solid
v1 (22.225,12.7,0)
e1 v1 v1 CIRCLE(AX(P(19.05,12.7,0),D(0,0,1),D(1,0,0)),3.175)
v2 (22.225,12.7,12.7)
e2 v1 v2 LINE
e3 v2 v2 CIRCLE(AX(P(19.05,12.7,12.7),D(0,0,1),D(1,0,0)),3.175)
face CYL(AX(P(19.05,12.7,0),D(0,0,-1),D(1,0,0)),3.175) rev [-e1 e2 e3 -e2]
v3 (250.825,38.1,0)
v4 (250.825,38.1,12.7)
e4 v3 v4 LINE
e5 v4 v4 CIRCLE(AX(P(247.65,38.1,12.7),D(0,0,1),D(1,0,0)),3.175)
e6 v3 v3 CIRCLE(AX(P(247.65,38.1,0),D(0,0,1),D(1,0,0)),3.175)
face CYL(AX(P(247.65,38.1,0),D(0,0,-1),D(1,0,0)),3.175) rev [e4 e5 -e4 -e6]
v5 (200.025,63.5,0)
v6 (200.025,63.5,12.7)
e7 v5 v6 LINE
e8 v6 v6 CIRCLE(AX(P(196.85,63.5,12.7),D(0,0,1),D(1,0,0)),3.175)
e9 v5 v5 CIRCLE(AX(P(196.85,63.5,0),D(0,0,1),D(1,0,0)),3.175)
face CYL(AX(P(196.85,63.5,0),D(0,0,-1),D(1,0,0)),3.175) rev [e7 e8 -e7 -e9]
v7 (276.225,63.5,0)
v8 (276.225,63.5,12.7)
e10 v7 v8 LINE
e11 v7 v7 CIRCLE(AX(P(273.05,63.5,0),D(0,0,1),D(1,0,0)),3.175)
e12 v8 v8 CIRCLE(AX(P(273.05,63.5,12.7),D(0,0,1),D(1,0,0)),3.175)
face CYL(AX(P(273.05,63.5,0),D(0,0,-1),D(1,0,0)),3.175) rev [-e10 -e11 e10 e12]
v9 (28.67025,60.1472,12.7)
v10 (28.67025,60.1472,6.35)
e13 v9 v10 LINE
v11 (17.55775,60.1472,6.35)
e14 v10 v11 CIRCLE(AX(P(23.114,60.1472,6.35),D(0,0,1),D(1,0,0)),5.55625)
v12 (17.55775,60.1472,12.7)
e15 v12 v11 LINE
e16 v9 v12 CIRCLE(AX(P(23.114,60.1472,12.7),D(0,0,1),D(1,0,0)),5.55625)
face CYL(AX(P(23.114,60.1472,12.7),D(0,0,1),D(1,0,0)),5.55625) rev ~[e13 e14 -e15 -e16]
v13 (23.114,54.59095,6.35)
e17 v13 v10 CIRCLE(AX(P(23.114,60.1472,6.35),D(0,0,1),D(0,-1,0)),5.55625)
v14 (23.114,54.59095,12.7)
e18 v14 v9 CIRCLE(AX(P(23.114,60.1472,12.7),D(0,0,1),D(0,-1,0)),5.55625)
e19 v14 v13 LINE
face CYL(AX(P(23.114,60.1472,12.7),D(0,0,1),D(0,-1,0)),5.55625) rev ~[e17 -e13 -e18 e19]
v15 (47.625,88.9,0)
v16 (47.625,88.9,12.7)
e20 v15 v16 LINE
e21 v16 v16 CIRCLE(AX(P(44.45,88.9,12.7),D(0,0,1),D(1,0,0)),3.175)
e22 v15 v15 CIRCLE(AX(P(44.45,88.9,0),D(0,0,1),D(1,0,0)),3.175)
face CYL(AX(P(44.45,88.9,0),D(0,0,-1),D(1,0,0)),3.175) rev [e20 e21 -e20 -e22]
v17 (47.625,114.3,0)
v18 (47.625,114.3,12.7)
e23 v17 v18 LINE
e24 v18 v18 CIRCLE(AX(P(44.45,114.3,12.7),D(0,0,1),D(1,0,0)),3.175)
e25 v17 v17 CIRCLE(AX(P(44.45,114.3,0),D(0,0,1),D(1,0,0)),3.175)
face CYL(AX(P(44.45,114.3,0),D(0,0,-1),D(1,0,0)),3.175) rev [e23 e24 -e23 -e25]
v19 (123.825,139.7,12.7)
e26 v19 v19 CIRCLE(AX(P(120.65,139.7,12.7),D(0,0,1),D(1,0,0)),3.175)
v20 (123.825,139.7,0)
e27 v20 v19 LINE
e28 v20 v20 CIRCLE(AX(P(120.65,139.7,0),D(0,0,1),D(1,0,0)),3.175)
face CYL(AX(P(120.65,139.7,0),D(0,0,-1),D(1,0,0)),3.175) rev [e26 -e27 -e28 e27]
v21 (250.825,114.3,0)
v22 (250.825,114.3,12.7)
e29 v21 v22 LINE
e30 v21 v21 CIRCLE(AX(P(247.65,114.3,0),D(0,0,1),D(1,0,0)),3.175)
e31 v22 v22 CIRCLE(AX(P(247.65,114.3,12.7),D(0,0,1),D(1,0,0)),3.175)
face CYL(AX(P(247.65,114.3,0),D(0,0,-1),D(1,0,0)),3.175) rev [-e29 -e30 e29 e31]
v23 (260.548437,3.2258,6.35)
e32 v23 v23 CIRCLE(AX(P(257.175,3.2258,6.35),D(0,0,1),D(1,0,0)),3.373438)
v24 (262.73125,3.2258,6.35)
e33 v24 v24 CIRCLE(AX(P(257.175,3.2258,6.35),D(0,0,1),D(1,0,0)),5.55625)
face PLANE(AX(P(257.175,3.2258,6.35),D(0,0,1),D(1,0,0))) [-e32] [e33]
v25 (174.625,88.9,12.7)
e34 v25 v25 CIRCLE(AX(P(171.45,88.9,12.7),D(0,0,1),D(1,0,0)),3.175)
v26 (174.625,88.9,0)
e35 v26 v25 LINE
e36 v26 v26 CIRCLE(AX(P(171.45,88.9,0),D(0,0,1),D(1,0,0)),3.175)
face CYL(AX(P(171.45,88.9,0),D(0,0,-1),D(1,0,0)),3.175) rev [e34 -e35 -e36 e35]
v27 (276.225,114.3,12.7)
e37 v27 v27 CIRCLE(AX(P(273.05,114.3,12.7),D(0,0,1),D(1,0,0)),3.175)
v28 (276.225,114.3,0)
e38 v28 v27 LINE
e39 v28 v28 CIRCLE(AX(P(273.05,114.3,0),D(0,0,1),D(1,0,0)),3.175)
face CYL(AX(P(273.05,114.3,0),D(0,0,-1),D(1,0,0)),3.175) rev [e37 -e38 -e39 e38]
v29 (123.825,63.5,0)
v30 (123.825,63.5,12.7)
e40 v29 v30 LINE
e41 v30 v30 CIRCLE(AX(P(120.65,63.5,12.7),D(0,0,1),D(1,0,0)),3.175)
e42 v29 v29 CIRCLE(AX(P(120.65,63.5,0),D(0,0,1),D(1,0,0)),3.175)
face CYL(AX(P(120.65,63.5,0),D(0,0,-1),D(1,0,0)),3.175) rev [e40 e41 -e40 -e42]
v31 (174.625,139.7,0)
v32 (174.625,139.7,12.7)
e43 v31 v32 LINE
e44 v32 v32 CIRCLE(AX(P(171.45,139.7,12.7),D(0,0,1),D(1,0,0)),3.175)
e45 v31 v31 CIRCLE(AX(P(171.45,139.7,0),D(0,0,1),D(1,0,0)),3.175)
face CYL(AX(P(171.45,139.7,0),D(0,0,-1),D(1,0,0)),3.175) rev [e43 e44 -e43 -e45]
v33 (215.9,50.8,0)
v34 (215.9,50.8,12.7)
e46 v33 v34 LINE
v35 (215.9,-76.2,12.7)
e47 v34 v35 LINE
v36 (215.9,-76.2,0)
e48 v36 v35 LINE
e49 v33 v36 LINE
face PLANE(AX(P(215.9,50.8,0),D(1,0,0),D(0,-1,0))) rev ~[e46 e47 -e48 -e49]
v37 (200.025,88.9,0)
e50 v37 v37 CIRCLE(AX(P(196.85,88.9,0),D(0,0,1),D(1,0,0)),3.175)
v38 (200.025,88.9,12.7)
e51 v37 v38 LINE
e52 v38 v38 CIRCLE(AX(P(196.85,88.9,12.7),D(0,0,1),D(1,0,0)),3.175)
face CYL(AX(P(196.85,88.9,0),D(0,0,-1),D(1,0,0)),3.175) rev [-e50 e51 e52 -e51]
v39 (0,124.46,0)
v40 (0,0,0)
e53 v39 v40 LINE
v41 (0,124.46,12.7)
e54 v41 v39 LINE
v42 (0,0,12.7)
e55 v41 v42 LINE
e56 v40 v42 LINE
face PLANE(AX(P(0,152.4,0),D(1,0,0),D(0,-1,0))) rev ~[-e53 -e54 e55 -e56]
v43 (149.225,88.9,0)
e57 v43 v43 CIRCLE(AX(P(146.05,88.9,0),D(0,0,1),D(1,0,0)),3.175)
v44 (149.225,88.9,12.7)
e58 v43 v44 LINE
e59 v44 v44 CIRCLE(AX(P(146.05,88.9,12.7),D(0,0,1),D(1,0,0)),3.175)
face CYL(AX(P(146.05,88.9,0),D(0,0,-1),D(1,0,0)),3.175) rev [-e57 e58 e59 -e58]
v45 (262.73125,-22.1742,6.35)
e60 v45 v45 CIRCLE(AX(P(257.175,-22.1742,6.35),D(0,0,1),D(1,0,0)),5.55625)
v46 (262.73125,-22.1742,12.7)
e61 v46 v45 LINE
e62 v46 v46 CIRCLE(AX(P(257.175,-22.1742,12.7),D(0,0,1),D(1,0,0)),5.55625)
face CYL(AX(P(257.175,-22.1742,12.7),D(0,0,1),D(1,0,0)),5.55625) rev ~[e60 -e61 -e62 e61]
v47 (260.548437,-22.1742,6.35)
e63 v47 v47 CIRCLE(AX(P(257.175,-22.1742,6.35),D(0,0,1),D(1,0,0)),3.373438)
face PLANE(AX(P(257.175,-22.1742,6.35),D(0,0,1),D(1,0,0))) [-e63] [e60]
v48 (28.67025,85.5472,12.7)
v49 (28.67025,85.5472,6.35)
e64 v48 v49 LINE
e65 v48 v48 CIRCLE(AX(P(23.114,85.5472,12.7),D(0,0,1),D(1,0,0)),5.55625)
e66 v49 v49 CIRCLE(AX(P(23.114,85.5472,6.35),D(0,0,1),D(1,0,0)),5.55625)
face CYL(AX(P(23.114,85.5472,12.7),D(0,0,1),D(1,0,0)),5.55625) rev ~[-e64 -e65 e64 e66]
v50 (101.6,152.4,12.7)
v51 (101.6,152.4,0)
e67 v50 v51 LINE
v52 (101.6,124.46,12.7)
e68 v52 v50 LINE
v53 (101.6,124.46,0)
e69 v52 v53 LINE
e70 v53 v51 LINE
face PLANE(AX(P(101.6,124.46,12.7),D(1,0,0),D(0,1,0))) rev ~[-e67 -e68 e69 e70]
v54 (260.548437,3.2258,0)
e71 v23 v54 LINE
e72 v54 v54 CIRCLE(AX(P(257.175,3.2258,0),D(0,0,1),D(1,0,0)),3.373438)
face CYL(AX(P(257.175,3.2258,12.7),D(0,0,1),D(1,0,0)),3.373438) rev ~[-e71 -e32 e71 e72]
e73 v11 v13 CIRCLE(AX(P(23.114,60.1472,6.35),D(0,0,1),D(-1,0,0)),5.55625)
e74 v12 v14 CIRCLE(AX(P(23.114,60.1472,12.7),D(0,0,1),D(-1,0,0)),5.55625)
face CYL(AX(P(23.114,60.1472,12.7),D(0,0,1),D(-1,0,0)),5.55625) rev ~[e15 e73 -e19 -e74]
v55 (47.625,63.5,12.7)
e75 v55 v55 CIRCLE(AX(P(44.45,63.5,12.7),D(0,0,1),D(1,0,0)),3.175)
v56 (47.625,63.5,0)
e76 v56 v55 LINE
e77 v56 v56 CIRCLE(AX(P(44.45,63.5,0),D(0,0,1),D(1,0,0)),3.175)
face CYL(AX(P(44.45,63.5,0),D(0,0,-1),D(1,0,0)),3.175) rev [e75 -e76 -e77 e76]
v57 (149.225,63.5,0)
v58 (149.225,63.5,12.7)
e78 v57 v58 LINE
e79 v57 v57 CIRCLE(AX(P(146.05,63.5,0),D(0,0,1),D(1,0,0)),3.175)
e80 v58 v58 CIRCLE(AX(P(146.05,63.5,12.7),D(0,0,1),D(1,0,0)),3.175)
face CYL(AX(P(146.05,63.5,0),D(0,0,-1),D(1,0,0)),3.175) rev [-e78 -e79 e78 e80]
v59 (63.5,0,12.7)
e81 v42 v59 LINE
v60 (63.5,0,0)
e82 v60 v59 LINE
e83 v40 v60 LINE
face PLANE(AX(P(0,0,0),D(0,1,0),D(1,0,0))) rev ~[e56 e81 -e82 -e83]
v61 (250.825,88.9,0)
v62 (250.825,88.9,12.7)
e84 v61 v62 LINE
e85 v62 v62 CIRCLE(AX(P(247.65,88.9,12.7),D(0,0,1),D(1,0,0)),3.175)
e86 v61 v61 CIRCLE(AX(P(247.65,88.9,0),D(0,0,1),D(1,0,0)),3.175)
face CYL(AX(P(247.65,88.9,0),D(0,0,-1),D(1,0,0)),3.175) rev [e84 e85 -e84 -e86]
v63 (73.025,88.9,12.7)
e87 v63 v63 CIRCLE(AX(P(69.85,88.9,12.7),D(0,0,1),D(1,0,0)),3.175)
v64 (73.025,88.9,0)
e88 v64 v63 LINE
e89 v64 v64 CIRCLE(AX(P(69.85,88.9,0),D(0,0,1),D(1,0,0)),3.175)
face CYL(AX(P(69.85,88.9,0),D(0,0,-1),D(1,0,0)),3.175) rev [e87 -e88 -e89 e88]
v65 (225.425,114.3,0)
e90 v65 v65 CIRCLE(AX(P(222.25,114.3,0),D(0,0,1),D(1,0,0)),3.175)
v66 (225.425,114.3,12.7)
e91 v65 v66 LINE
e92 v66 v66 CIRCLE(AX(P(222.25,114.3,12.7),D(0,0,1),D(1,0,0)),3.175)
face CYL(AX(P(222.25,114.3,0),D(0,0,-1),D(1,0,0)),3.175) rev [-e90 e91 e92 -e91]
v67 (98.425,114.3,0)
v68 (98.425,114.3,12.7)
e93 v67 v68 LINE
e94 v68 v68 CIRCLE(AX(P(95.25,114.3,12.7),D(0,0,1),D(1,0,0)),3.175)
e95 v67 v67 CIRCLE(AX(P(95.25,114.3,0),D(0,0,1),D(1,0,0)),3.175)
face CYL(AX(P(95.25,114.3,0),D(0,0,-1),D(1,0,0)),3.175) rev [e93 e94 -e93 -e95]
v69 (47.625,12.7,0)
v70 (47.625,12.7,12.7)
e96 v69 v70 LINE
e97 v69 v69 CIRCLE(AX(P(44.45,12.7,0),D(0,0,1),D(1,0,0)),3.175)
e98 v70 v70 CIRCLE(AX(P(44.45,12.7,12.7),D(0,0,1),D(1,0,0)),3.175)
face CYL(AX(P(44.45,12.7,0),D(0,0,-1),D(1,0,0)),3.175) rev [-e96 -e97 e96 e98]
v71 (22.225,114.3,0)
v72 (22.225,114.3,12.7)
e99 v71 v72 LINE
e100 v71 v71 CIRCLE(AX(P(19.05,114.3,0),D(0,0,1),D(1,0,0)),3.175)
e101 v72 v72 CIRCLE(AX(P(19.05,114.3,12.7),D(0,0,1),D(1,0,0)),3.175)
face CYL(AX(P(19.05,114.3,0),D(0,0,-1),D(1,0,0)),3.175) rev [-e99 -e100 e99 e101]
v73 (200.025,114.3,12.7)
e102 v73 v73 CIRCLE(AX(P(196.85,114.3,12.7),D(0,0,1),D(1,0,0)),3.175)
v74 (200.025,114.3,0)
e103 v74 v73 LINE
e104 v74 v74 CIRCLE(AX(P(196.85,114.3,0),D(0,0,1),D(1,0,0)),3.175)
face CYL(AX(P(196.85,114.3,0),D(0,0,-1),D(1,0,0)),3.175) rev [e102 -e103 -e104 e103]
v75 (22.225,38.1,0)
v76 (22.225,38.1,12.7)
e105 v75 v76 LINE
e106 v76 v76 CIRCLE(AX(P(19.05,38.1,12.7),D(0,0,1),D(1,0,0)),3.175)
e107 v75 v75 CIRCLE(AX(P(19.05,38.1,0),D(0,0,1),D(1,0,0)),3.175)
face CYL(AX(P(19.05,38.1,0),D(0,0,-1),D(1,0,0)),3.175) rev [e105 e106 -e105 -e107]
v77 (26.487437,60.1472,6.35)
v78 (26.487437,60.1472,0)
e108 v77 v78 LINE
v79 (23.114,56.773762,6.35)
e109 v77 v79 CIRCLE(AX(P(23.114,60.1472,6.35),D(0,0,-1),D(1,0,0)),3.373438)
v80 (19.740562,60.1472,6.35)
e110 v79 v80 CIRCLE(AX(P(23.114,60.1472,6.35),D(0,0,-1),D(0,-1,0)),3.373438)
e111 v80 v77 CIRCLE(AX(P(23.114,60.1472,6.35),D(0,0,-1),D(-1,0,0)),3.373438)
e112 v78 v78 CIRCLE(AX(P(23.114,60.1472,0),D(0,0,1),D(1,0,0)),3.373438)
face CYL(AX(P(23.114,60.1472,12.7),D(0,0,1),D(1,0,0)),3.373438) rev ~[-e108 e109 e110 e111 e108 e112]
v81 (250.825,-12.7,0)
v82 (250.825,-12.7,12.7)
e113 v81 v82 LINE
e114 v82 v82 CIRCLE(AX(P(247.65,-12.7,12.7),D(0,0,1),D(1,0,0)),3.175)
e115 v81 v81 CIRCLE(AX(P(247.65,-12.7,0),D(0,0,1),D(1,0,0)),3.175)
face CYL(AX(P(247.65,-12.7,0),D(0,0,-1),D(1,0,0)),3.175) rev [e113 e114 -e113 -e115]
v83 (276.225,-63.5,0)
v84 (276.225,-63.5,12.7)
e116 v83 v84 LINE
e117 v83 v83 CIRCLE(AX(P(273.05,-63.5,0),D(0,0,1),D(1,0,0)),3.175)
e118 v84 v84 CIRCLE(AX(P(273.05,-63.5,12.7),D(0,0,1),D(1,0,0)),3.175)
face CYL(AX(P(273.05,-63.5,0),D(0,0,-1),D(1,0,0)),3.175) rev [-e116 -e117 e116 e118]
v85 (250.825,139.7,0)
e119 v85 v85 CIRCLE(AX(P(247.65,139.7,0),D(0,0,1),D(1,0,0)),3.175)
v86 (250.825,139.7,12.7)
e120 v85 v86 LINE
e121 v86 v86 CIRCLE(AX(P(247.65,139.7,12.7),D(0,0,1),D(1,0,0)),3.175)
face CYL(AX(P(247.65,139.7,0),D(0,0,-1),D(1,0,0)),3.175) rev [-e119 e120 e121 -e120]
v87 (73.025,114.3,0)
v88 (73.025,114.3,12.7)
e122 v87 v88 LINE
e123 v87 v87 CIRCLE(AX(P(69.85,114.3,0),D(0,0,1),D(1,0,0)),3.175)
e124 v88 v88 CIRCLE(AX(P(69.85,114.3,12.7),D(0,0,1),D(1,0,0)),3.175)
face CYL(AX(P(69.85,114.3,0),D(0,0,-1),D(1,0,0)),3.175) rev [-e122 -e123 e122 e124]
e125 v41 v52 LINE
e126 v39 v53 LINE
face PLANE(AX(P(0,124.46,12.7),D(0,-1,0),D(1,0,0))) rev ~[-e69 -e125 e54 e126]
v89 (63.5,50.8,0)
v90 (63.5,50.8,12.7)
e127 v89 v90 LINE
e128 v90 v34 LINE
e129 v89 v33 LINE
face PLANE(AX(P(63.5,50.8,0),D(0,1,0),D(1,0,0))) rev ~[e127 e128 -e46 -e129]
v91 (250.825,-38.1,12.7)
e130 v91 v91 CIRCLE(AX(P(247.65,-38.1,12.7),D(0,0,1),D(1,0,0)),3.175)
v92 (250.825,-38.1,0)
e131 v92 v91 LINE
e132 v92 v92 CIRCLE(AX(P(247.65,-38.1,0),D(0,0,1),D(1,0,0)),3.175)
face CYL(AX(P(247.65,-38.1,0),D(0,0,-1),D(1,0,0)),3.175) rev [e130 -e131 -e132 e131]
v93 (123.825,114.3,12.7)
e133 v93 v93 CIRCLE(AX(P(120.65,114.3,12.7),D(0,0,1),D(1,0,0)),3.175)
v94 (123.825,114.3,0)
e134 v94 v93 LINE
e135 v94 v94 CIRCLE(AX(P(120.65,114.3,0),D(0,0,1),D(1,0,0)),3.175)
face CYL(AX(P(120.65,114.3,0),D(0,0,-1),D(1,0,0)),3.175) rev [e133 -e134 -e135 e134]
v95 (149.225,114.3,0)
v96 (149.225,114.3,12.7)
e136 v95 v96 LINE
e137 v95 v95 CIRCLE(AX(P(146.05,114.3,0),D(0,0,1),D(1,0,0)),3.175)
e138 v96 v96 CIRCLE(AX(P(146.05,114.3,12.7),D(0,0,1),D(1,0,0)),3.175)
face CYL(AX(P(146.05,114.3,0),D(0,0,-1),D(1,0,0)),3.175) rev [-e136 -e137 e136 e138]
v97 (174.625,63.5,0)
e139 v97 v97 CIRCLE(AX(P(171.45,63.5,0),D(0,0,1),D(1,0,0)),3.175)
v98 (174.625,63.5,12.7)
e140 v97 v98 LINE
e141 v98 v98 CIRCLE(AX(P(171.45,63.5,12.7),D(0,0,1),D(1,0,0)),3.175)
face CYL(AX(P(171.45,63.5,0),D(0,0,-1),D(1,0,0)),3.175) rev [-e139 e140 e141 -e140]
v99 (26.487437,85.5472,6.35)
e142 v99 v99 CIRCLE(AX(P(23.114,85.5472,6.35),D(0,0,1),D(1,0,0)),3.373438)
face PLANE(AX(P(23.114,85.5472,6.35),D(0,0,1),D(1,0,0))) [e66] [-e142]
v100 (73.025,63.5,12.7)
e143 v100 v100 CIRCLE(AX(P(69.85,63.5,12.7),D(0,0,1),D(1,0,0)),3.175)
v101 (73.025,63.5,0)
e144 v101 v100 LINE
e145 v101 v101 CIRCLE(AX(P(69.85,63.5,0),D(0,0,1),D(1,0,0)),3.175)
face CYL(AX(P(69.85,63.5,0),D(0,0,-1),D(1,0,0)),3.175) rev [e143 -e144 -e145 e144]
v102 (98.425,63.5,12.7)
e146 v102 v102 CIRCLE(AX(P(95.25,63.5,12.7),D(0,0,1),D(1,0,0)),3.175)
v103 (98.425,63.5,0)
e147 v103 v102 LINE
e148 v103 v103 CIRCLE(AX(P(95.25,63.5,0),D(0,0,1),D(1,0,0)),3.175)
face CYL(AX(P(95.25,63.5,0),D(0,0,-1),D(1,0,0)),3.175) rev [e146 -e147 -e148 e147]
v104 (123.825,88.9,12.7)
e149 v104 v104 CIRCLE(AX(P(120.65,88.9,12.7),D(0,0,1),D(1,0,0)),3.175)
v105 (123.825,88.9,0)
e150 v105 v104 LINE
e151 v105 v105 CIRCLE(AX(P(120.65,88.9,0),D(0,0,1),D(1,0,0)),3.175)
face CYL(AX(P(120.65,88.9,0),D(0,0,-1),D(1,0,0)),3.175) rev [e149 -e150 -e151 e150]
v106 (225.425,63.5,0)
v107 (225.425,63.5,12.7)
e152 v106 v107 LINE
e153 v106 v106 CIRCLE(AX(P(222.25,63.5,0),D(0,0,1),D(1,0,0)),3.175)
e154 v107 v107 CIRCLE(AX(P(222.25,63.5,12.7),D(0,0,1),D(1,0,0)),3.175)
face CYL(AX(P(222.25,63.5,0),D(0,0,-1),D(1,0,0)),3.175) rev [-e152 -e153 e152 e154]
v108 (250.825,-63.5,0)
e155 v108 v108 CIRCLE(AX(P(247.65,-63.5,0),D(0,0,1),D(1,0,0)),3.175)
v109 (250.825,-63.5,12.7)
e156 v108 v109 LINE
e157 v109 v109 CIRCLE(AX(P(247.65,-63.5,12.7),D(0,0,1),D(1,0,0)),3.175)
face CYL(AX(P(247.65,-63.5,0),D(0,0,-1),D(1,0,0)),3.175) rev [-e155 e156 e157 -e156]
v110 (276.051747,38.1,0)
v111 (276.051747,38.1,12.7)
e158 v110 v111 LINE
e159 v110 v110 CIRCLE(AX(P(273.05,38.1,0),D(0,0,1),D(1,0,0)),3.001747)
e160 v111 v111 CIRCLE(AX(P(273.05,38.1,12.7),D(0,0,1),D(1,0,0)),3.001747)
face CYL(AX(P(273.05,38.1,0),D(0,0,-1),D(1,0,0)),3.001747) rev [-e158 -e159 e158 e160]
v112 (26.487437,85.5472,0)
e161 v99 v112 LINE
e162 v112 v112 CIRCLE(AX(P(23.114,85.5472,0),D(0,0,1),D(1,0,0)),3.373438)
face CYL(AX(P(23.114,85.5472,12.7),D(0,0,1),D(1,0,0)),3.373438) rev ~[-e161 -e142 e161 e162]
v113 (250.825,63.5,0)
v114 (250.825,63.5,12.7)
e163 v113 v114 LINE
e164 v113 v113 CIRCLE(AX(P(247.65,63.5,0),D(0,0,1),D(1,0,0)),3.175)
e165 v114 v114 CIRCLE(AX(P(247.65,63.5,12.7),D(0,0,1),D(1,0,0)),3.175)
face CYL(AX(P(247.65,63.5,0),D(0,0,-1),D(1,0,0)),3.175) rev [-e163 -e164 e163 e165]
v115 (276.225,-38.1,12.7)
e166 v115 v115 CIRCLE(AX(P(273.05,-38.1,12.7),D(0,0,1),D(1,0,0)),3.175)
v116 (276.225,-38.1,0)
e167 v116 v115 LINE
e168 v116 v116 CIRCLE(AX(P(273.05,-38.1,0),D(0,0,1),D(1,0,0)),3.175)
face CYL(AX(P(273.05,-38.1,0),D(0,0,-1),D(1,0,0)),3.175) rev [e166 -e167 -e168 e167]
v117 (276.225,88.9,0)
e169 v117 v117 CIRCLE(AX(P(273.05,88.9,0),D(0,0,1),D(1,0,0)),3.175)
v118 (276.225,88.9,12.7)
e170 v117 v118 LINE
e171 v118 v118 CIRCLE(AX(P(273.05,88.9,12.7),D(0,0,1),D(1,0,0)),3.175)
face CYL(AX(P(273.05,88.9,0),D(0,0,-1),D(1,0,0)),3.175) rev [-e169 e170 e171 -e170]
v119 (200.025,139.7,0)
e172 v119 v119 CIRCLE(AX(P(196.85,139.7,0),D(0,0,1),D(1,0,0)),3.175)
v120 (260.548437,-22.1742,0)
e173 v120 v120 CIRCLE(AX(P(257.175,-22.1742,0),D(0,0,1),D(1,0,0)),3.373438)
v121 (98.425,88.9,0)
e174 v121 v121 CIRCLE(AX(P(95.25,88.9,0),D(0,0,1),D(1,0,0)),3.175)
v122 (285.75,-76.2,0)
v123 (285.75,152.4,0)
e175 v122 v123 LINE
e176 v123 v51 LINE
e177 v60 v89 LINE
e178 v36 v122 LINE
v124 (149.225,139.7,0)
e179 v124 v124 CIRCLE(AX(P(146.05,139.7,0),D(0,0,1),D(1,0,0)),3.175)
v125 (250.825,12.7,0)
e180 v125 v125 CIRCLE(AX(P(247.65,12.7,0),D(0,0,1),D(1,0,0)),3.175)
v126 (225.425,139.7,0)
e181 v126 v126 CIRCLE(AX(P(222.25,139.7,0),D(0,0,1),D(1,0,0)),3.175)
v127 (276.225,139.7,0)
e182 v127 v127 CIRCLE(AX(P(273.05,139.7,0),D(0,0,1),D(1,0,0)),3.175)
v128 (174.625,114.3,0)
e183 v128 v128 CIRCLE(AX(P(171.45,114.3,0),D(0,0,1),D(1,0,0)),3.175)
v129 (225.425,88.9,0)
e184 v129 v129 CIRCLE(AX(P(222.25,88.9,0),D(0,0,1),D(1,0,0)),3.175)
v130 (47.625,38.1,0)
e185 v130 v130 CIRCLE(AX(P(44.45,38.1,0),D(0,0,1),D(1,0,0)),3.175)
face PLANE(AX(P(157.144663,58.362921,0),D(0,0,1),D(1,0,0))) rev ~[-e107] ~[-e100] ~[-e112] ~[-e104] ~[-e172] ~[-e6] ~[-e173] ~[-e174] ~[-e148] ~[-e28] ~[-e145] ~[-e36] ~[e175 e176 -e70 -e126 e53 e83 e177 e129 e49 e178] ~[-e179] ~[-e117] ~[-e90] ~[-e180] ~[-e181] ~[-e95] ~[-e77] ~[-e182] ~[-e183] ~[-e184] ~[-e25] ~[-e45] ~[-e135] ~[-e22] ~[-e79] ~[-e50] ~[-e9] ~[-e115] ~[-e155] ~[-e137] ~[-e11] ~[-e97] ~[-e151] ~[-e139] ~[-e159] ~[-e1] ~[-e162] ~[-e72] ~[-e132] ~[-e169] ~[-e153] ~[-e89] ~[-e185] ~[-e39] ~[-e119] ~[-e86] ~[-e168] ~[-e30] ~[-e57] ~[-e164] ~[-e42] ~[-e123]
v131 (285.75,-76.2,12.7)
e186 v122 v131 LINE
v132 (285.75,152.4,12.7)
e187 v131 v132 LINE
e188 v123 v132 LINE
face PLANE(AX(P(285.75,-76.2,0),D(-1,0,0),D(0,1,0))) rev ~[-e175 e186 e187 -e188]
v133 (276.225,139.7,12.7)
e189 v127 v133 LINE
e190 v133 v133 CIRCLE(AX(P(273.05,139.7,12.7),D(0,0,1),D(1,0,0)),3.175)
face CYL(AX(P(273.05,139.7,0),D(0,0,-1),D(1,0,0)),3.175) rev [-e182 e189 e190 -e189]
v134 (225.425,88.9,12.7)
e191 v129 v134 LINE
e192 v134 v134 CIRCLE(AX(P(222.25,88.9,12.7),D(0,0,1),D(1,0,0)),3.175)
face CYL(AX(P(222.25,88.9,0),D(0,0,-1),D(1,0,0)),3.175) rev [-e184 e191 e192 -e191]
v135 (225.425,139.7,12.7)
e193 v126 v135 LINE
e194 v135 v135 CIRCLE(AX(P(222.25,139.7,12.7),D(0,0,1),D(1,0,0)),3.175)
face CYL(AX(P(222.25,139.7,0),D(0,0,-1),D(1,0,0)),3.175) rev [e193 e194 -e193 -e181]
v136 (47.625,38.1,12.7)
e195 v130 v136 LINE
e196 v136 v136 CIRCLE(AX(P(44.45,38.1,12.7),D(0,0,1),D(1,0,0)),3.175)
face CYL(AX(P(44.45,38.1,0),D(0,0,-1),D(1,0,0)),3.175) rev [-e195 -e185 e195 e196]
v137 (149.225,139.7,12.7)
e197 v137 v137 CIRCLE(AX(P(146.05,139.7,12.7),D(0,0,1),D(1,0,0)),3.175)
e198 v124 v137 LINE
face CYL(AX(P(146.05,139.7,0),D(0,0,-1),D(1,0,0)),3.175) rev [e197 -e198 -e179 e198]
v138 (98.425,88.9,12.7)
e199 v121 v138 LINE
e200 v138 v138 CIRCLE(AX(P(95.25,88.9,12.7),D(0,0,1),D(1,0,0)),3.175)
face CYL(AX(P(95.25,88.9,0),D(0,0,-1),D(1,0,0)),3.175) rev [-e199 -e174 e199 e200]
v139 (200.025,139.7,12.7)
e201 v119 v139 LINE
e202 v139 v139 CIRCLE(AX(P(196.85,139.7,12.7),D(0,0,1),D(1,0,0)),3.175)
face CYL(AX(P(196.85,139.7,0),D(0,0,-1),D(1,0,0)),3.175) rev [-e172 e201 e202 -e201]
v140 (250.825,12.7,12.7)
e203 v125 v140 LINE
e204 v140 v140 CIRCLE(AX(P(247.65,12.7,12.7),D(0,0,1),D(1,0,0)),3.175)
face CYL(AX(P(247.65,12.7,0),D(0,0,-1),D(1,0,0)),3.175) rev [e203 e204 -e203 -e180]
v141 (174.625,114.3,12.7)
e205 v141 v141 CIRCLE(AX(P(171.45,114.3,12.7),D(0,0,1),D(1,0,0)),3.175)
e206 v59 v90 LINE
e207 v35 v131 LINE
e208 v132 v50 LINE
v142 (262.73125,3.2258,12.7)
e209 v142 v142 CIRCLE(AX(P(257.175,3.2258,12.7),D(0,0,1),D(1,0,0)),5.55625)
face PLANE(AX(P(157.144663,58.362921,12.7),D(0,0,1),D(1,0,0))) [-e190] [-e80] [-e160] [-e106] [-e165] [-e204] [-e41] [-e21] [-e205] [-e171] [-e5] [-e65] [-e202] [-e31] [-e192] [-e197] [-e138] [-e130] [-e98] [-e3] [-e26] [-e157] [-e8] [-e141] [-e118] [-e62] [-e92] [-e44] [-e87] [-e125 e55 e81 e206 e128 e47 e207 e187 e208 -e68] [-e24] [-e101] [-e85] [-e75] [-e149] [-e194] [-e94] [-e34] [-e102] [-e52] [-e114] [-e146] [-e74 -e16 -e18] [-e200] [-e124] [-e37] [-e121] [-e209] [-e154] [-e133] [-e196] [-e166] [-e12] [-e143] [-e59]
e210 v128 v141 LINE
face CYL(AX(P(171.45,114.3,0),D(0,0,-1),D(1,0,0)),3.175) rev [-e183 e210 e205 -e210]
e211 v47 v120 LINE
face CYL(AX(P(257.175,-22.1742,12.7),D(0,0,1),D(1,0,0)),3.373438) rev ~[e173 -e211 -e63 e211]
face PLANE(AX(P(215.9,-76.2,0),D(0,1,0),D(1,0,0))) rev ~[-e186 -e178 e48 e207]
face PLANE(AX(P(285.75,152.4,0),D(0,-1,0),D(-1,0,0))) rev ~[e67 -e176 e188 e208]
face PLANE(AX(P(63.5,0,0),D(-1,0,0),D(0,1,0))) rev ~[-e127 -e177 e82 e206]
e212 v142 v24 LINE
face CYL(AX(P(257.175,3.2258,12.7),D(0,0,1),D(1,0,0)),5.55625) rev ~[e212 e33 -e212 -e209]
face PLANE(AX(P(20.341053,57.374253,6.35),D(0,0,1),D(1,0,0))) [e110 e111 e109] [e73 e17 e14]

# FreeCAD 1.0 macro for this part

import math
import FreeCAD as App
import Part
import Sketcher

V = App.Vector
Q = App.Units.Quantity

doc = App.newDocument("Part")
params = doc.addObject("Spreadsheet::Sheet", "Params")
for row, (alias, value) in enumerate([
    ("sketch1_diameter", "0.25 in"),
    ("sketch1_width", "6 in"),
    ("sketch1_height", "2 in"),
    ("sketch1_height2", "5 in"),
    ("sketch1_width2", "2.5 in"),
    ("pad1_length", "0.5 in"),
    ("sketch2_diameter", "0.265625 in"),
    ("pocket1_length", "0.5 in"),
    ("sketch3_diameter", "0.4375 in"),
    ("sketch3_diameter2", "0.265625 in"),
    ("pocket2_length", "0.25 in"),
    ("sketch4_radius", "0.21875 in"),
    ("pocket3_length", "0.25 in"),
    ("sketch5_width", "4 in"),
    ("sketch5_height", "1.1 in"),
    ("pocket4_length", "0.5 in"),
    ("sketch6_diameter", "0.265625 in"),
    ("pocket5_length", "0.5 in"),
    ("sketch7_diameter", "0.4375 in"),
    ("sketch7_diameter2", "0.265625 in"),
    ("pocket6_length", "0.25 in"),
], start=1):
    params.set(f"A{row}", alias)
    params.set(f"B{row}", "=" + value)
    params.setAlias(f"B{row}", alias)

body = doc.addObject("PartDesign::Body", "Body")

# Sketch on XY plane
sketch1 = body.newObject("Sketcher::SketchObject", "Sketch")
sketch1.AttachmentSupport = (doc.getObject("XY_Plane"), [""])
sketch1.MapMode = "FlatFace"
sketch1.addGeometry([
    Part.LineSegment(V(0, 152.4, 0), V(0, 0, 0)),  # 0
    Part.LineSegment(V(0, 0, 0), V(63.5, 0, 0)),  # 1
    Part.LineSegment(V(63.5, 0, 0), V(63.5, 50.8, 0)),  # 2
    Part.LineSegment(V(63.5, 50.8, 0), V(215.9, 50.8, 0)),  # 3
    Part.LineSegment(V(215.9, 50.8, 0), V(215.9, -76.2, 0)),  # 4
    Part.LineSegment(V(215.9, -76.2, 0), V(285.8, -76.2, 0)),  # 5
    Part.LineSegment(V(285.8, -76.2, 0), V(285.8, 152.4, 0)),  # 6
    Part.LineSegment(V(285.8, 152.4, 0), V(0, 152.4, 0)),  # 7
    Part.Circle(V(19.1, 12.7, 0), V(0, 0, 1), 3.2),  # 8
    Part.Circle(V(44.5, 12.7, 0), V(0, 0, 1), 3.2),  # 9
    Part.Circle(V(247.7, -63.5, 0), V(0, 0, 1), 3.2),  # 10
    Part.Circle(V(273.1, -63.5, 0), V(0, 0, 1), 3.2),  # 11
    Part.Circle(V(247.7, -38.1, 0), V(0, 0, 1), 3.2),  # 12
    Part.Circle(V(273.1, -38.1, 0), V(0, 0, 1), 3.2),  # 13
    Part.Circle(V(247.7, -12.7, 0), V(0, 0, 1), 3.2),  # 14
    Part.Circle(V(247.7, 12.7, 0), V(0, 0, 1), 3.2),  # 15
    Part.Circle(V(19.1, 38.1, 0), V(0, 0, 1), 3.2),  # 16
    Part.Circle(V(44.5, 38.1, 0), V(0, 0, 1), 3.2),  # 17
    Part.Circle(V(44.5, 63.5, 0), V(0, 0, 1), 3.2),  # 18
    Part.Circle(V(69.8, 63.5, 0), V(0, 0, 1), 3.2),  # 19
    Part.Circle(V(44.5, 88.9, 0), V(0, 0, 1), 3.2),  # 20
    Part.Circle(V(69.8, 88.9, 0), V(0, 0, 1), 3.2),  # 21
    Part.Circle(V(95.2, 63.5, 0), V(0, 0, 1), 3.2),  # 22
    Part.Circle(V(120.7, 63.5, 0), V(0, 0, 1), 3.2),  # 23
    Part.Circle(V(95.2, 88.9, 0), V(0, 0, 1), 3.2),  # 24
    Part.Circle(V(120.7, 88.9, 0), V(0, 0, 1), 3.2),  # 25
    Part.Circle(V(19.1, 114.3, 0), V(0, 0, 1), 3.2),  # 26
    Part.Circle(V(44.5, 114.3, 0), V(0, 0, 1), 3.2),  # 27
    Part.Circle(V(69.8, 114.3, 0), V(0, 0, 1), 3.2),  # 28
    Part.Circle(V(19.1, 139.7, 0), V(0, 0, 1), 3.2),  # 29
    Part.Circle(V(44.5, 139.7, 0), V(0, 0, 1), 3.2),  # 30
    Part.Circle(V(69.8, 139.7, 0), V(0, 0, 1), 3.2),  # 31
    Part.Circle(V(95.2, 114.3, 0), V(0, 0, 1), 3.2),  # 32
    Part.Circle(V(120.7, 114.3, 0), V(0, 0, 1), 3.2),  # 33
    Part.Circle(V(95.2, 139.7, 0), V(0, 0, 1), 3.2),  # 34
    Part.Circle(V(120.7, 139.7, 0), V(0, 0, 1), 3.2),  # 35
    Part.Circle(V(146.1, 63.5, 0), V(0, 0, 1), 3.2),  # 36
    Part.Circle(V(171.4, 63.5, 0), V(0, 0, 1), 3.2),  # 37
    Part.Circle(V(196.8, 63.5, 0), V(0, 0, 1), 3.2),  # 38
    Part.Circle(V(146.1, 88.9, 0), V(0, 0, 1), 3.2),  # 39
    Part.Circle(V(171.4, 88.9, 0), V(0, 0, 1), 3.2),  # 40
    Part.Circle(V(196.8, 88.9, 0), V(0, 0, 1), 3.2),  # 41
    Part.Circle(V(222.2, 63.5, 0), V(0, 0, 1), 3.2),  # 42
    Part.Circle(V(247.7, 38.1, 0), V(0, 0, 1), 3.2),  # 43
    Part.Circle(V(273.1, 38.1, 0), V(0, 0, 1), 3),  # 44
    Part.Circle(V(247.7, 63.5, 0), V(0, 0, 1), 3.2),  # 45
    Part.Circle(V(273.1, 63.5, 0), V(0, 0, 1), 3.2),  # 46
    Part.Circle(V(222.2, 88.9, 0), V(0, 0, 1), 3.2),  # 47
    Part.Circle(V(247.7, 88.9, 0), V(0, 0, 1), 3.2),  # 48
    Part.Circle(V(273.1, 88.9, 0), V(0, 0, 1), 3.2),  # 49
    Part.Circle(V(146.1, 114.3, 0), V(0, 0, 1), 3.2),  # 50
    Part.Circle(V(171.4, 114.3, 0), V(0, 0, 1), 3.2),  # 51
    Part.Circle(V(196.8, 114.3, 0), V(0, 0, 1), 3.2),  # 52
    Part.Circle(V(146.1, 139.7, 0), V(0, 0, 1), 3.2),  # 53
    Part.Circle(V(171.4, 139.7, 0), V(0, 0, 1), 3.2),  # 54
    Part.Circle(V(196.8, 139.7, 0), V(0, 0, 1), 3.2),  # 55
    Part.Circle(V(222.2, 114.3, 0), V(0, 0, 1), 3.2),  # 56
    Part.Circle(V(247.7, 114.3, 0), V(0, 0, 1), 3.2),  # 57
    Part.Circle(V(273.1, 114.3, 0), V(0, 0, 1), 3.2),  # 58
    Part.Circle(V(222.2, 139.7, 0), V(0, 0, 1), 3.2),  # 59
    Part.Circle(V(247.7, 139.7, 0), V(0, 0, 1), 3.2),  # 60
    Part.Circle(V(273.1, 139.7, 0), V(0, 0, 1), 3.2),  # 61
], False)
sketch1.addConstraint([
    Sketcher.Constraint("Coincident", 0, 2, 1, 1),
    Sketcher.Constraint("Coincident", 1, 2, 2, 1),
    Sketcher.Constraint("Coincident", 2, 2, 3, 1),
    Sketcher.Constraint("Coincident", 3, 2, 4, 1),
    Sketcher.Constraint("Coincident", 4, 2, 5, 1),
    Sketcher.Constraint("Coincident", 5, 2, 6, 1),
    Sketcher.Constraint("Coincident", 6, 2, 7, 1),
    Sketcher.Constraint("Coincident", 7, 2, 0, 1),
    Sketcher.Constraint("Vertical", 0),
    Sketcher.Constraint("Horizontal", 1),
    Sketcher.Constraint("Vertical", 2),
    Sketcher.Constraint("Horizontal", 3),
    Sketcher.Constraint("Vertical", 4),
    Sketcher.Constraint("Horizontal", 5),
    Sketcher.Constraint("Vertical", 6),
    Sketcher.Constraint("Horizontal", 7),
    Sketcher.Constraint("Coincident", 0, 2, -1, 1),
    Sketcher.Constraint("Equal", 8, 9),
    Sketcher.Constraint("Equal", 9, 10),
    Sketcher.Constraint("Equal", 10, 11),
    Sketcher.Constraint("Equal", 11, 12),
    Sketcher.Constraint("Equal", 12, 13),
    Sketcher.Constraint("Equal", 13, 14),
    Sketcher.Constraint("Equal", 14, 15),
    Sketcher.Constraint("Equal", 15, 16),
    Sketcher.Constraint("Equal", 16, 17),
    Sketcher.Constraint("Equal", 17, 18),
    Sketcher.Constraint("Equal", 18, 19),
    Sketcher.Constraint("Equal", 19, 20),
    Sketcher.Constraint("Equal", 20, 21),
    Sketcher.Constraint("Equal", 21, 22),
    Sketcher.Constraint("Equal", 22, 23),
    Sketcher.Constraint("Equal", 23, 24),
    Sketcher.Constraint("Equal", 24, 25),
    Sketcher.Constraint("Equal", 25, 26),
    Sketcher.Constraint("Equal", 26, 27),
    Sketcher.Constraint("Equal", 27, 28),
    Sketcher.Constraint("Equal", 28, 29),
    Sketcher.Constraint("Equal", 29, 30),
    Sketcher.Constraint("Equal", 30, 31),
    Sketcher.Constraint("Equal", 31, 32),
    Sketcher.Constraint("Equal", 32, 33),
    Sketcher.Constraint("Equal", 33, 34),
    Sketcher.Constraint("Equal", 34, 35),
    Sketcher.Constraint("Equal", 35, 36),
    Sketcher.Constraint("Equal", 36, 37),
    Sketcher.Constraint("Equal", 37, 38),
    Sketcher.Constraint("Equal", 38, 39),
    Sketcher.Constraint("Equal", 39, 40),
    Sketcher.Constraint("Equal", 40, 41),
    Sketcher.Constraint("Equal", 41, 42),
    Sketcher.Constraint("Equal", 42, 43),
    Sketcher.Constraint("Equal", 43, 45),
    Sketcher.Constraint("Equal", 45, 46),
    Sketcher.Constraint("Equal", 46, 47),
    Sketcher.Constraint("Equal", 47, 48),
    Sketcher.Constraint("Equal", 48, 49),
    Sketcher.Constraint("Equal", 49, 50),
    Sketcher.Constraint("Equal", 50, 51),
    Sketcher.Constraint("Equal", 51, 52),
    Sketcher.Constraint("Equal", 52, 53),
    Sketcher.Constraint("Equal", 53, 54),
    Sketcher.Constraint("Equal", 54, 55),
    Sketcher.Constraint("Equal", 55, 56),
    Sketcher.Constraint("Equal", 56, 57),
    Sketcher.Constraint("Equal", 57, 58),
    Sketcher.Constraint("Equal", 58, 59),
    Sketcher.Constraint("Equal", 59, 60),
    Sketcher.Constraint("Equal", 60, 61),
    Sketcher.Constraint("Symmetric", 14, 3, 15, 3, -1),
    Sketcher.Constraint("Symmetric", 12, 3, 43, 3, -1),
    Sketcher.Constraint("Symmetric", 13, 3, 44, 3, -1),
    Sketcher.Constraint("Symmetric", 10, 3, 45, 3, -1),
    Sketcher.Constraint("Symmetric", 11, 3, 46, 3, -1),
    Sketcher.Constraint("Horizontal", 8, 3, 9, 3),
    Sketcher.Constraint("Horizontal", 10, 3, 11, 3),
    Sketcher.Constraint("Horizontal", 12, 3, 13, 3),
    Sketcher.Constraint("Horizontal", 9, 3, 15, 3),
    Sketcher.Constraint("Horizontal", 16, 3, 17, 3),
    Sketcher.Constraint("Horizontal", 18, 3, 19, 3),
    Sketcher.Constraint("Horizontal", 20, 3, 21, 3),
    Sketcher.Constraint("Horizontal", 19, 3, 22, 3),
    Sketcher.Constraint("Horizontal", 22, 3, 23, 3),
    Sketcher.Constraint("Horizontal", 21, 3, 24, 3),
    Sketcher.Constraint("Horizontal", 24, 3, 25, 3),
    Sketcher.Constraint("Horizontal", 26, 3, 27, 3),
    Sketcher.Constraint("Horizontal", 27, 3, 28, 3),
    Sketcher.Constraint("Horizontal", 29, 3, 30, 3),
    Sketcher.Constraint("Horizontal", 30, 3, 31, 3),
    Sketcher.Constraint("Horizontal", 28, 3, 32, 3),
    Sketcher.Constraint("Horizontal", 32, 3, 33, 3),
    Sketcher.Constraint("Horizontal", 31, 3, 34, 3),
    Sketcher.Constraint("Horizontal", 34, 3, 35, 3),
    Sketcher.Constraint("Horizontal", 23, 3, 36, 3),
    Sketcher.Constraint("Horizontal", 36, 3, 37, 3),
    Sketcher.Constraint("Horizontal", 37, 3, 38, 3),
    Sketcher.Constraint("Horizontal", 25, 3, 39, 3),
    Sketcher.Constraint("Horizontal", 39, 3, 40, 3),
    Sketcher.Constraint("Horizontal", 40, 3, 41, 3),
    Sketcher.Constraint("Horizontal", 38, 3, 42, 3),
    Sketcher.Constraint("Horizontal", 17, 3, 43, 3),
    Sketcher.Constraint("Horizontal", 42, 3, 45, 3),
    Sketcher.Constraint("Horizontal", 41, 3, 47, 3),
    Sketcher.Constraint("Horizontal", 47, 3, 48, 3),
    Sketcher.Constraint("Horizontal", 48, 3, 49, 3),
    Sketcher.Constraint("Horizontal", 33, 3, 50, 3),
    Sketcher.Constraint("Horizontal", 50, 3, 51, 3),
    Sketcher.Constraint("Horizontal", 51, 3, 52, 3),
    Sketcher.Constraint("Horizontal", 35, 3, 53, 3),
    Sketcher.Constraint("Horizontal", 53, 3, 54, 3),
    Sketcher.Constraint("Horizontal", 54, 3, 55, 3),
    Sketcher.Constraint("Horizontal", 52, 3, 56, 3),
    Sketcher.Constraint("Horizontal", 56, 3, 57, 3),
    Sketcher.Constraint("Horizontal", 57, 3, 58, 3),
    Sketcher.Constraint("Horizontal", 55, 3, 59, 3),
    Sketcher.Constraint("Horizontal", 59, 3, 60, 3),
    Sketcher.Constraint("Horizontal", 60, 3, 61, 3),
    Sketcher.Constraint("Vertical", 10, 3, 12, 3),
    Sketcher.Constraint("Vertical", 11, 3, 13, 3),
    Sketcher.Constraint("Vertical", 12, 3, 14, 3),
    Sketcher.Constraint("Vertical", 8, 3, 16, 3),
    Sketcher.Constraint("Vertical", 9, 3, 17, 3),
    Sketcher.Constraint("Vertical", 17, 3, 18, 3),
    Sketcher.Constraint("Vertical", 18, 3, 20, 3),
    Sketcher.Constraint("Vertical", 19, 3, 21, 3),
    Sketcher.Constraint("Vertical", 22, 3, 24, 3),
    Sketcher.Constraint("Vertical", 23, 3, 25, 3),
    Sketcher.Constraint("Vertical", 16, 3, 26, 3),
    Sketcher.Constraint("Vertical", 20, 3, 27, 3),
    Sketcher.Constraint("Vertical", 21, 3, 28, 3),
    Sketcher.Constraint("Vertical", 26, 3, 29, 3),
    Sketcher.Constraint("Vertical", 27, 3, 30, 3),
    Sketcher.Constraint("Vertical", 28, 3, 31, 3),
    Sketcher.Constraint("Vertical", 24, 3, 32, 3),
    Sketcher.Constraint("Vertical", 25, 3, 33, 3),
    Sketcher.Constraint("Vertical", 32, 3, 34, 3),
    Sketcher.Constraint("Vertical", 33, 3, 35, 3),
    Sketcher.Constraint("Vertical", 36, 3, 39, 3),
    Sketcher.Constraint("Vertical", 37, 3, 40, 3),
    Sketcher.Constraint("Vertical", 38, 3, 41, 3),
    Sketcher.Constraint("Vertical", 42, 3, 47, 3),
    Sketcher.Constraint("Vertical", 45, 3, 48, 3),
    Sketcher.Constraint("Vertical", 46, 3, 49, 3),
    Sketcher.Constraint("Vertical", 39, 3, 50, 3),
    Sketcher.Constraint("Vertical", 40, 3, 51, 3),
    Sketcher.Constraint("Vertical", 41, 3, 52, 3),
    Sketcher.Constraint("Vertical", 50, 3, 53, 3),
    Sketcher.Constraint("Vertical", 51, 3, 54, 3),
    Sketcher.Constraint("Vertical", 52, 3, 55, 3),
    Sketcher.Constraint("Vertical", 47, 3, 56, 3),
    Sketcher.Constraint("Vertical", 48, 3, 57, 3),
    Sketcher.Constraint("Vertical", 49, 3, 58, 3),
    Sketcher.Constraint("Vertical", 56, 3, 59, 3),
    Sketcher.Constraint("Vertical", 57, 3, 60, 3),
    Sketcher.Constraint("Vertical", 58, 3, 61, 3),
    Sketcher.Constraint("Equal", 3, 0),
    Sketcher.Constraint("Diameter", 8, Q("0.25 in")),
    Sketcher.Constraint("DistanceX", 3, 1, 3, 2, Q("6 in")),
    Sketcher.Constraint("DistanceY", 2, 1, 2, 2, Q("2 in")),
    Sketcher.Constraint("DistanceY", 4, 2, 4, 1, Q("5 in")),
    Sketcher.Constraint("DistanceX", 1, 1, 1, 2, Q("2.5 in")),
    Sketcher.Constraint("DistanceX", 5, 1, 5, 2, Q("2.75 in")),
    Sketcher.Constraint("DistanceY", -1, 1, 8, 3, Q("0.5 in")),
    Sketcher.Constraint("DistanceY", 10, 3, -1, 1, Q("2.5 in")),
    Sketcher.Constraint("DistanceY", 12, 3, -1, 1, Q("1.5 in")),
    Sketcher.Constraint("DistanceY", -1, 1, 20, 3, Q("3.5 in")),
    Sketcher.Constraint("DistanceY", -1, 1, 26, 3, Q("4.5 in")),
    Sketcher.Constraint("DistanceY", -1, 1, 29, 3, Q("5.5 in")),
    Sketcher.Constraint("DistanceX", -1, 1, 8, 3, Q("0.75 in")),
    Sketcher.Constraint("DistanceX", -1, 1, 9, 3, Q("1.75 in")),
    Sketcher.Constraint("DistanceX", -1, 1, 10, 3, Q("9.75 in")),
    Sketcher.Constraint("DistanceX", -1, 1, 11, 3, Q("10.75 in")),
    Sketcher.Constraint("DistanceX", -1, 1, 19, 3, Q("2.75 in")),
    Sketcher.Constraint("DistanceX", -1, 1, 22, 3, Q("3.75 in")),
    Sketcher.Constraint("DistanceX", -1, 1, 23, 3, Q("4.75 in")),
    Sketcher.Constraint("DistanceX", -1, 1, 36, 3, Q("5.75 in")),
    Sketcher.Constraint("DistanceX", -1, 1, 37, 3, Q("6.75 in")),
    Sketcher.Constraint("DistanceX", -1, 1, 38, 3, Q("7.75 in")),
    Sketcher.Constraint("DistanceX", -1, 1, 42, 3, Q("8.75 in")),
    Sketcher.Constraint("Diameter", 44, 6.003493),
])
sketch1.setExpression("Constraints[156]", "Params.sketch1_diameter")
sketch1.setExpression("Constraints[157]", "Params.sketch1_width")
sketch1.setExpression("Constraints[158]", "Params.sketch1_height")
sketch1.setExpression("Constraints[159]", "Params.sketch1_height2")
sketch1.setExpression("Constraints[160]", "Params.sketch1_width2")
pad1 = body.newObject("PartDesign::Pad", "Pad")
pad1.Profile = sketch1
pad1.setExpression("Length", "Params.pad1_length")

# Sketch on XY plane
sketch2 = body.newObject("Sketcher::SketchObject", "Sketch001")
sketch2.AttachmentSupport = (doc.getObject("XY_Plane"), [""])
sketch2.MapMode = "FlatFace"
sketch2.AttachmentOffset = App.Placement(V(0, 0, 0.5 * 25.4), App.Rotation())
sketch2.addGeometry([
    Part.Circle(V(23.1, 60.1, 0), V(0, 0, 1), 3.4),
    Part.Circle(V(23.1, 85.5, 0), V(0, 0, 1), 3.4),
], False)
sketch2.addConstraint([
    Sketcher.Constraint("Equal", 0, 1),
    Sketcher.Constraint("Vertical", 0, 3, 1, 3),
    Sketcher.Constraint("Diameter", 0, Q("0.265625 in")),
    Sketcher.Constraint("DistanceY", 0, 3, 1, 3, Q("1 in")),
    Sketcher.Constraint("DistanceX", -1, 1, 0, 3, Q("0.91 in")),
    Sketcher.Constraint("DistanceY", -1, 1, 0, 3, Q("2.368 in")),
])
sketch2.setExpression("Constraints[2]", "Params.sketch2_diameter")
pocket1 = body.newObject("PartDesign::Pocket", "Pocket")
pocket1.Profile = sketch2
pocket1.setExpression("Length", "Params.pocket1_length")

# Sketch on XY plane
sketch3 = body.newObject("Sketcher::SketchObject", "Sketch002")
sketch3.AttachmentSupport = (doc.getObject("XY_Plane"), [""])
sketch3.MapMode = "FlatFace"
sketch3.AttachmentOffset = App.Placement(V(0, 0, 0.5 * 25.4), App.Rotation())
sketch3.addGeometry([
    Part.Circle(V(23.1, 85.5, 0), V(0, 0, 1), 5.6),  # 0
    Part.Circle(V(23.1, 85.5, 0), V(0, 0, 1), 3.4),  # 1
    Part.LineSegment(V(23.1, 56.8, 0), V(23.1, 54.6, 0)),  # 2
    Part.ArcOfCircle(Part.Circle(V(23.1, 60.1, 0), V(0, 0, 1), 5.6), math.radians(-90), math.radians(0)),  # 3
    Part.ArcOfCircle(Part.Circle(V(23.1, 60.1, 0), V(0, 0, 1), 5.6), math.radians(0), math.radians(180)),  # 4
    Part.LineSegment(V(17.6, 60.1, 0), V(19.7, 60.1, 0)),  # 5
    Part.ArcOfCircle(Part.Circle(V(23.1, 60.1, 0), V(0, 0, 1), 3.4), math.radians(0), math.radians(180)),  # 6
    Part.ArcOfCircle(Part.Circle(V(23.1, 60.1, 0), V(0, 0, 1), 3.4), math.radians(-90), math.radians(0)),  # 7
], False)
sketch3.addConstraint([
    Sketcher.Constraint("Coincident", 2, 2, 3, 1),
    Sketcher.Constraint("Tangent", 3, 2, 4, 1),
    Sketcher.Constraint("Coincident", 4, 2, 5, 1),
    Sketcher.Constraint("Coincident", 5, 2, 6, 2),
    Sketcher.Constraint("Tangent", 6, 1, 7, 2),
    Sketcher.Constraint("Coincident", 7, 1, 2, 1),
    Sketcher.Constraint("Vertical", 2),
    Sketcher.Constraint("Horizontal", 5),
    Sketcher.Constraint("Coincident", 1, 3, 0, 3),
    Sketcher.Constraint("Coincident", 6, 3, 3, 3),
    Sketcher.Constraint("Equal", 0, 3),
    Sketcher.Constraint("Equal", 3, 4),
    Sketcher.Constraint("Equal", 1, 6),
    Sketcher.Constraint("Equal", 6, 7),
    Sketcher.Constraint("Horizontal", 7, 3, 3, 2),
    Sketcher.Constraint("Horizontal", 3, 2, 4, 2),
    Sketcher.Constraint("Horizontal", 5, 2, 6, 1),
    Sketcher.Constraint("Vertical", 1, 3, 3, 3),
    Sketcher.Constraint("Vertical", 7, 3, 2, 2),
    Sketcher.Constraint("Diameter", 0, Q("0.4375 in")),
    Sketcher.Constraint("Diameter", 1, Q("0.265625 in")),
    Sketcher.Constraint("DistanceY", 3, 3, 0, 3, Q("1 in")),
    Sketcher.Constraint("DistanceX", -1, 1, 0, 3, Q("0.91 in")),
    Sketcher.Constraint("DistanceY", -1, 1, 0, 3, Q("3.368 in")),
])
sketch3.setExpression("Constraints[19]", "Params.sketch3_diameter")
sketch3.setExpression("Constraints[20]", "Params.sketch3_diameter2")
pocket2 = body.newObject("PartDesign::Pocket", "Pocket001")
pocket2.Profile = sketch3
pocket2.setExpression("Length", "Params.pocket2_length")

# Sketch on XY plane
sketch4 = body.newObject("Sketcher::SketchObject", "Sketch003")
sketch4.AttachmentSupport = (doc.getObject("XY_Plane"), [""])
sketch4.MapMode = "FlatFace"
sketch4.AttachmentOffset = App.Placement(V(0, 0, 0.5 * 25.4), App.Rotation())
sketch4.addGeometry([
    Part.ArcOfCircle(Part.Circle(V(23.1, 60.1, 0), V(0, 0, 1), 5.6), math.radians(180), math.radians(270)),  # 0
    Part.ArcOfCircle(Part.Circle(V(23.1, 60.1, 0), V(0, 0, 1), 5.6), math.radians(-90), math.radians(0)),  # 1
    Part.ArcOfCircle(Part.Circle(V(23.1, 60.1, 0), V(0, 0, 1), 5.6), math.radians(0), math.radians(180)),  # 2
    Part.ArcOfCircle(Part.Circle(V(23.1, 60.1, 0), V(0, 0, 1), 3.4), math.radians(-180), math.radians(-90)),  # 3
    Part.ArcOfCircle(Part.Circle(V(23.1, 60.1, 0), V(0, 0, 1), 3.4), math.radians(0), math.radians(180)),  # 4
    Part.ArcOfCircle(Part.Circle(V(23.1, 60.1, 0), V(0, 0, 1), 3.4), math.radians(-90), math.radians(0)),  # 5
], False)
sketch4.addConstraint([
    Sketcher.Constraint("Tangent", 0, 2, 1, 1),
    Sketcher.Constraint("Tangent", 1, 2, 2, 1),
    Sketcher.Constraint("Tangent", 2, 2, 0, 1),
    Sketcher.Constraint("Tangent", 3, 1, 4, 2),
    Sketcher.Constraint("Tangent", 4, 1, 5, 2),
    Sketcher.Constraint("Tangent", 5, 1, 3, 2),
    Sketcher.Constraint("Coincident", 3, 3, 0, 3),
    Sketcher.Constraint("Horizontal", 5, 3, 1, 2),
    Sketcher.Constraint("Horizontal", 1, 2, 2, 2),
    Sketcher.Constraint("Horizontal", 2, 2, 3, 1),
    Sketcher.Constraint("Horizontal", 3, 1, 4, 1),
    Sketcher.Constraint("Vertical", 5, 3, 0, 2),
    Sketcher.Constraint("Vertical", 0, 2, 5, 1),
    Sketcher.Constraint("Radius", 0, Q("0.21875 in")),
    Sketcher.Constraint("DistanceX", -1, 1, 0, 3, Q("0.91 in")),
    Sketcher.Constraint("DistanceY", -1, 1, 0, 3, Q("2.368 in")),
    Sketcher.Constraint("Radius", 3, 3.373438),
])
sketch4.setExpression("Constraints[13]", "Params.sketch4_radius")
pocket3 = body.newObject("PartDesign::Pocket", "Pocket002")
pocket3.Profile = sketch4
pocket3.setExpression("Length", "Params.pocket3_length")

# Sketch on XY plane
sketch5 = body.newObject("Sketcher::SketchObject", "Sketch004")
sketch5.AttachmentSupport = (doc.getObject("XY_Plane"), [""])
sketch5.MapMode = "FlatFace"
sketch5.AttachmentOffset = App.Placement(V(0, 0, 0.5 * 25.4), App.Rotation())
sketch5.addGeometry([
    Part.LineSegment(V(0, 152, 0), V(0, 124, 0)),
    Part.LineSegment(V(0, 124, 0), V(102, 124, 0)),
    Part.LineSegment(V(102, 124, 0), V(102, 152, 0)),
    Part.LineSegment(V(102, 152, 0), V(0, 152, 0)),
], False)
sketch5.addConstraint([
    Sketcher.Constraint("Coincident", 0, 2, 1, 1),
    Sketcher.Constraint("Coincident", 1, 2, 2, 1),
    Sketcher.Constraint("Coincident", 2, 2, 3, 1),
    Sketcher.Constraint("Coincident", 3, 2, 0, 1),
    Sketcher.Constraint("Vertical", 0),
    Sketcher.Constraint("Horizontal", 1),
    Sketcher.Constraint("Vertical", 2),
    Sketcher.Constraint("Horizontal", 3),
    Sketcher.Constraint("PointOnObject", 0, 2, -2),
    Sketcher.Constraint("DistanceX", 1, 1, 1, 2, Q("4 in")),
    Sketcher.Constraint("DistanceY", 0, 2, 0, 1, Q("1.1 in")),
    Sketcher.Constraint("DistanceY", -1, 1, 2, 2, Q("6 in")),
])
sketch5.setExpression("Constraints[9]", "Params.sketch5_width")
sketch5.setExpression("Constraints[10]", "Params.sketch5_height")
pocket4 = body.newObject("PartDesign::Pocket", "Pocket003")
pocket4.Profile = sketch5
pocket4.setExpression("Length", "Params.pocket4_length")

# Sketch on XY plane
sketch6 = body.newObject("Sketcher::SketchObject", "Sketch005")
sketch6.AttachmentSupport = (doc.getObject("XY_Plane"), [""])
sketch6.MapMode = "FlatFace"
sketch6.AttachmentOffset = App.Placement(V(0, 0, 0.5 * 25.4), App.Rotation())
sketch6.addGeometry([
    Part.Circle(V(257.2, -22.2, 0), V(0, 0, 1), 3.4),
    Part.Circle(V(257.2, 3.2, 0), V(0, 0, 1), 3.4),
], False)
sketch6.addConstraint([
    Sketcher.Constraint("Equal", 0, 1),
    Sketcher.Constraint("Vertical", 0, 3, 1, 3),
    Sketcher.Constraint("Diameter", 0, Q("0.265625 in")),
    Sketcher.Constraint("DistanceY", 0, 3, 1, 3, Q("1 in")),
    Sketcher.Constraint("DistanceX", -1, 1, 0, 3, Q("10.125 in")),
    Sketcher.Constraint("DistanceY", 0, 3, -1, 1, Q("0.873 in")),
])
sketch6.setExpression("Constraints[2]", "Params.sketch6_diameter")
pocket5 = body.newObject("PartDesign::Pocket", "Pocket004")
pocket5.Profile = sketch6
pocket5.setExpression("Length", "Params.pocket5_length")

# Sketch on XY plane
sketch7 = body.newObject("Sketcher::SketchObject", "Sketch006")
sketch7.AttachmentSupport = (doc.getObject("XY_Plane"), [""])
sketch7.MapMode = "FlatFace"
sketch7.AttachmentOffset = App.Placement(V(0, 0, 0.5 * 25.4), App.Rotation())
sketch7.addGeometry([
    Part.Circle(V(257.2, 3.2, 0), V(0, 0, 1), 5.6),
    Part.Circle(V(257.2, 3.2, 0), V(0, 0, 1), 3.4),
    Part.Circle(V(257.2, -22.2, 0), V(0, 0, 1), 5.6),
    Part.Circle(V(257.2, -22.2, 0), V(0, 0, 1), 3.4),
], False)
sketch7.addConstraint([
    Sketcher.Constraint("Coincident", 1, 3, 0, 3),
    Sketcher.Constraint("Coincident", 3, 3, 2, 3),
    Sketcher.Constraint("Equal", 0, 2),
    Sketcher.Constraint("Equal", 1, 3),
    Sketcher.Constraint("Vertical", 1, 3, 2, 3),
    Sketcher.Constraint("Diameter", 0, Q("0.4375 in")),
    Sketcher.Constraint("Diameter", 1, Q("0.265625 in")),
    Sketcher.Constraint("DistanceY", 2, 3, 0, 3, Q("1 in")),
    Sketcher.Constraint("DistanceX", -1, 1, 0, 3, Q("10.125 in")),
    Sketcher.Constraint("DistanceY", -1, 1, 0, 3, Q("0.127 in")),
])
sketch7.setExpression("Constraints[5]", "Params.sketch7_diameter")
sketch7.setExpression("Constraints[6]", "Params.sketch7_diameter2")
pocket6 = body.newObject("PartDesign::Pocket", "Pocket005")
pocket6.Profile = sketch7
pocket6.setExpression("Length", "Params.pocket6_length")

doc.recompute()
